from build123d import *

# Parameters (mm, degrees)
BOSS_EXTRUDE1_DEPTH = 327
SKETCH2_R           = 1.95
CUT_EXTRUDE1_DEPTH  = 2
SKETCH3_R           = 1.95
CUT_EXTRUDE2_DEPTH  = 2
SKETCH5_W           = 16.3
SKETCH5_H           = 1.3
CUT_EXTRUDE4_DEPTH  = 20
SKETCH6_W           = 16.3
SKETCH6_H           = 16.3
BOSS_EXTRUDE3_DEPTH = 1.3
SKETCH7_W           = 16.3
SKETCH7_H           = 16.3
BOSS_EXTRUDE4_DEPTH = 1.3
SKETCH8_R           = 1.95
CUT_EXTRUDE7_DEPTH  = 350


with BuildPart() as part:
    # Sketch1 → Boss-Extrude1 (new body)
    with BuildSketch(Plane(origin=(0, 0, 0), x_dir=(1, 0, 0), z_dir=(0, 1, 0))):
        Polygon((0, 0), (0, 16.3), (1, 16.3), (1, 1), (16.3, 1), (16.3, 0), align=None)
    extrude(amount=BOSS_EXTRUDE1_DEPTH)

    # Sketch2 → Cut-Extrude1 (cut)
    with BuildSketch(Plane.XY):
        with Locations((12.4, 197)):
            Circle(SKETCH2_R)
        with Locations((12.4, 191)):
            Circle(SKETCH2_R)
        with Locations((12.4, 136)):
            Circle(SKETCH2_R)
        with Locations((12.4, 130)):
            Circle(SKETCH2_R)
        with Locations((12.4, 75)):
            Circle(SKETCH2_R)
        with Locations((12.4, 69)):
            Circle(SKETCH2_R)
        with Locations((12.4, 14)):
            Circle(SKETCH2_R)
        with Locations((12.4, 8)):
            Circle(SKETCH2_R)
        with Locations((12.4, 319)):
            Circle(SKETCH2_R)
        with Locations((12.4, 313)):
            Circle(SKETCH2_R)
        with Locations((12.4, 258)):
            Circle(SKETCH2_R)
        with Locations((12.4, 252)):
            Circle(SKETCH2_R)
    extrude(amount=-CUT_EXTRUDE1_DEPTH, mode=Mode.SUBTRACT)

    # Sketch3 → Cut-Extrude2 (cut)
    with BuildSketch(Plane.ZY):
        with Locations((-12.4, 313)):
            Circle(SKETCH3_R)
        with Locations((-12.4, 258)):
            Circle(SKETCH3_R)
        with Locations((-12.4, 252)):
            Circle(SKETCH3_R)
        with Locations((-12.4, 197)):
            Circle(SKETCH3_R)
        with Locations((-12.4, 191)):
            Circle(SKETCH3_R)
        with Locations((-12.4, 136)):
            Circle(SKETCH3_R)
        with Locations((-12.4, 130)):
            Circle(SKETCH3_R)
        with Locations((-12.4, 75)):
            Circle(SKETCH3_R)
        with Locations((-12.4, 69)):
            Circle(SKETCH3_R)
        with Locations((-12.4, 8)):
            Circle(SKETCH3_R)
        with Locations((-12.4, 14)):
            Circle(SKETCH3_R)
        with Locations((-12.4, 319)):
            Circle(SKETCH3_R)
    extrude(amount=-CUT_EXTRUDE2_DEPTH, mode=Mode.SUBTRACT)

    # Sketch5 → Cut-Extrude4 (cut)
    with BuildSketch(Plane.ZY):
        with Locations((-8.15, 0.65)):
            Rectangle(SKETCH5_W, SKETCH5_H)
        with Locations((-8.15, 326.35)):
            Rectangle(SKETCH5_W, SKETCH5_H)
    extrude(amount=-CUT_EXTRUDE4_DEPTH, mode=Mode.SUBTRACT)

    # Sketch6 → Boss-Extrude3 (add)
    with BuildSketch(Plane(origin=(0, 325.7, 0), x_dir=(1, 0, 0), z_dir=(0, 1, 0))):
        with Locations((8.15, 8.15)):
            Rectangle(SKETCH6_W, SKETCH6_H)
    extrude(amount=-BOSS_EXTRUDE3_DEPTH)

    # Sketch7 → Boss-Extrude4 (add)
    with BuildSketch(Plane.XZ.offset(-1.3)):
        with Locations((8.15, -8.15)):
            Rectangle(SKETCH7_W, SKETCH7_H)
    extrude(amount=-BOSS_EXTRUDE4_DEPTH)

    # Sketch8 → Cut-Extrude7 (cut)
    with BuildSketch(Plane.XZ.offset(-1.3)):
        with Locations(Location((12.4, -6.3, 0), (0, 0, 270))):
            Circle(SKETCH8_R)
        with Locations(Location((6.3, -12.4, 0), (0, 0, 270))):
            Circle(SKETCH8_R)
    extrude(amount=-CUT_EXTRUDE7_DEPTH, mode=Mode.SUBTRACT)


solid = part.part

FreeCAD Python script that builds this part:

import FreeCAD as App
import Part
import Sketcher
from FreeCAD import Vector

doc = App.newDocument("Part")
body = doc.addObject("PartDesign::Body", "Body")

# Sketch on XZ plane
sketch1 = body.newObject("Sketcher::SketchObject", "Sketch")
sketch1.AttachmentSupport = (doc.getObject("XZ_Plane"), [""])
sketch1.MapMode = "FlatFace"
sketch1.addGeometry(Part.LineSegment(Vector(0, -16.3, 0), Vector(0, 0, 0)), False)
sketch1.addGeometry(Part.LineSegment(Vector(0, 0, 0), Vector(16.3, 0, 0)), False)
sketch1.addGeometry(Part.LineSegment(Vector(16.3, 0, 0), Vector(16.3, -1, 0)), False)
sketch1.addGeometry(Part.LineSegment(Vector(16.3, -1, 0), Vector(1, -1, 0)), False)
sketch1.addGeometry(Part.LineSegment(Vector(1, -1, 0), Vector(1, -16.3, 0)), False)
sketch1.addGeometry(Part.LineSegment(Vector(1, -16.3, 0), Vector(0, -16.3, 0)), False)
sketch1.addConstraint(Sketcher.Constraint("Coincident", 0, 2, 1, 1))
sketch1.addConstraint(Sketcher.Constraint("Coincident", 1, 2, 2, 1))
sketch1.addConstraint(Sketcher.Constraint("Coincident", 2, 2, 3, 1))
sketch1.addConstraint(Sketcher.Constraint("Coincident", 3, 2, 4, 1))
sketch1.addConstraint(Sketcher.Constraint("Coincident", 4, 2, 5, 1))
sketch1.addConstraint(Sketcher.Constraint("Coincident", 5, 2, 0, 1))
sketch1.addConstraint(Sketcher.Constraint("Vertical", 0))
sketch1.addConstraint(Sketcher.Constraint("Horizontal", 1))
sketch1.addConstraint(Sketcher.Constraint("Vertical", 2))
sketch1.addConstraint(Sketcher.Constraint("Horizontal", 3))
sketch1.addConstraint(Sketcher.Constraint("Vertical", 4))
sketch1.addConstraint(Sketcher.Constraint("Horizontal", 5))
sketch1.addConstraint(Sketcher.Constraint("Coincident", 0, 2, -1, 1))
sketch1.addConstraint(Sketcher.Constraint("Equal", 1, 0))
sketch1.addConstraint(Sketcher.Constraint("Equal", 5, 2))
sketch1.addConstraint(Sketcher.Constraint("DistanceX", 5, 2, 5, 1, 1.0))
sketch1.addConstraint(Sketcher.Constraint("DistanceX", 1, 1, 1, 2, 16.3))
pad1 = body.newObject("PartDesign::Pad", "Pad")
pad1.Profile = sketch1
pad1.Length = 327
pad1.Reversed = True

# Sketch on XY plane
sketch2 = body.newObject("Sketcher::SketchObject", "Sketch001")
sketch2.AttachmentSupport = (doc.getObject("XY_Plane"), [""])
sketch2.MapMode = "FlatFace"
sketch2.addGeometry(Part.Circle(Vector(12.4, 197, 0), Vector(0, 0, 1), 1.9), False)
sketch2.addGeometry(Part.Circle(Vector(12.4, 191, 0), Vector(0, 0, 1), 1.9), False)
sketch2.addGeometry(Part.Circle(Vector(12.4, 136, 0), Vector(0, 0, 1), 1.9), False)
sketch2.addGeometry(Part.Circle(Vector(12.4, 130, 0), Vector(0, 0, 1), 1.9), False)
sketch2.addGeometry(Part.Circle(Vector(12.4, 75, 0), Vector(0, 0, 1), 1.9), False)
sketch2.addGeometry(Part.Circle(Vector(12.4, 69, 0), Vector(0, 0, 1), 1.9), False)
sketch2.addGeometry(Part.Circle(Vector(12.4, 14, 0), Vector(0, 0, 1), 1.9), False)
sketch2.addGeometry(Part.Circle(Vector(12.4, 8, 0), Vector(0, 0, 1), 1.9), False)
sketch2.addGeometry(Part.Circle(Vector(12.4, 319, 0), Vector(0, 0, 1), 1.9), False)
sketch2.addGeometry(Part.Circle(Vector(12.4, 313, 0), Vector(0, 0, 1), 1.9), False)
sketch2.addGeometry(Part.Circle(Vector(12.4, 258, 0), Vector(0, 0, 1), 1.9), False)
sketch2.addGeometry(Part.Circle(Vector(12.4, 252, 0), Vector(0, 0, 1), 1.9), False)
sketch2.addConstraint(Sketcher.Constraint("Equal", 0, 1))
sketch2.addConstraint(Sketcher.Constraint("Equal", 1, 2))
sketch2.addConstraint(Sketcher.Constraint("Equal", 2, 3))
sketch2.addConstraint(Sketcher.Constraint("Equal", 3, 4))
sketch2.addConstraint(Sketcher.Constraint("Equal", 4, 5))
sketch2.addConstraint(Sketcher.Constraint("Equal", 5, 6))
sketch2.addConstraint(Sketcher.Constraint("Equal", 6, 7))
sketch2.addConstraint(Sketcher.Constraint("Equal", 7, 8))
sketch2.addConstraint(Sketcher.Constraint("Equal", 8, 9))
sketch2.addConstraint(Sketcher.Constraint("Equal", 9, 10))
sketch2.addConstraint(Sketcher.Constraint("Equal", 10, 11))
sketch2.addConstraint(Sketcher.Constraint("Vertical", 0, 3, 1, 3))
sketch2.addConstraint(Sketcher.Constraint("Vertical", 1, 3, 2, 3))
sketch2.addConstraint(Sketcher.Constraint("Vertical", 2, 3, 3, 3))
sketch2.addConstraint(Sketcher.Constraint("Vertical", 3, 3, 4, 3))
sketch2.addConstraint(Sketcher.Constraint("Vertical", 4, 3, 5, 3))
sketch2.addConstraint(Sketcher.Constraint("Vertical", 5, 3, 6, 3))
sketch2.addConstraint(Sketcher.Constraint("Vertical", 6, 3, 7, 3))
sketch2.addConstraint(Sketcher.Constraint("Vertical", 7, 3, 8, 3))
sketch2.addConstraint(Sketcher.Constraint("Vertical", 8, 3, 9, 3))
sketch2.addConstraint(Sketcher.Constraint("Vertical", 9, 3, 10, 3))
sketch2.addConstraint(Sketcher.Constraint("Vertical", 10, 3, 11, 3))
sketch2.addConstraint(Sketcher.Constraint("Diameter", 0, 3.9))
sketch2.addConstraint(Sketcher.Constraint("DistanceY", -1, 1, 0, 3, 197.0))
sketch2.addConstraint(Sketcher.Constraint("DistanceY", -1, 1, 1, 3, 191.0))
sketch2.addConstraint(Sketcher.Constraint("DistanceY", -1, 1, 2, 3, 136.0))
sketch2.addConstraint(Sketcher.Constraint("DistanceY", -1, 1, 3, 3, 130.0))
sketch2.addConstraint(Sketcher.Constraint("DistanceY", -1, 1, 4, 3, 75.0))
sketch2.addConstraint(Sketcher.Constraint("DistanceY", -1, 1, 5, 3, 69.0))
sketch2.addConstraint(Sketcher.Constraint("DistanceY", -1, 1, 6, 3, 14.0))
sketch2.addConstraint(Sketcher.Constraint("DistanceY", -1, 1, 7, 3, 8.0))
sketch2.addConstraint(Sketcher.Constraint("DistanceY", -1, 1, 8, 3, 319.0))
sketch2.addConstraint(Sketcher.Constraint("DistanceY", -1, 1, 9, 3, 313.0))
sketch2.addConstraint(Sketcher.Constraint("DistanceY", -1, 1, 10, 3, 258.0))
sketch2.addConstraint(Sketcher.Constraint("DistanceY", -1, 1, 11, 3, 252.0))
sketch2.addConstraint(Sketcher.Constraint("DistanceX", -1, 1, 0, 3, 12.4))
pocket1 = body.newObject("PartDesign::Pocket", "Pocket")
pocket1.Profile = sketch2
pocket1.Length = 2

# Sketch on YZ plane
sketch3 = body.newObject("Sketcher::SketchObject", "Sketch002")
sketch3.AttachmentSupport = (doc.getObject("YZ_Plane"), [""])
sketch3.MapMode = "FlatFace"
sketch3.addGeometry(Part.Circle(Vector(313, -12.4, 0), Vector(0, 0, 1), 1.9), False)
sketch3.addGeometry(Part.Circle(Vector(258, -12.4, 0), Vector(0, 0, 1), 1.9), False)
sketch3.addGeometry(Part.Circle(Vector(252, -12.4, 0), Vector(0, 0, 1), 1.9), False)
sketch3.addGeometry(Part.Circle(Vector(197, -12.4, 0), Vector(0, 0, 1), 1.9), False)
sketch3.addGeometry(Part.Circle(Vector(191, -12.4, 0), Vector(0, 0, 1), 1.9), False)
sketch3.addGeometry(Part.Circle(Vector(136, -12.4, 0), Vector(0, 0, 1), 1.9), False)
sketch3.addGeometry(Part.Circle(Vector(130, -12.4, 0), Vector(0, 0, 1), 1.9), False)
sketch3.addGeometry(Part.Circle(Vector(75, -12.4, 0), Vector(0, 0, 1), 1.9), False)
sketch3.addGeometry(Part.Circle(Vector(69, -12.4, 0), Vector(0, 0, 1), 1.9), False)
sketch3.addGeometry(Part.Circle(Vector(8, -12.4, 0), Vector(0, 0, 1), 1.9), False)
sketch3.addGeometry(Part.Circle(Vector(14, -12.4, 0), Vector(0, 0, 1), 1.9), False)
sketch3.addGeometry(Part.Circle(Vector(319, -12.4, 0), Vector(0, 0, 1), 1.9), False)
sketch3.addConstraint(Sketcher.Constraint("Equal", 0, 1))
sketch3.addConstraint(Sketcher.Constraint("Equal", 1, 2))
sketch3.addConstraint(Sketcher.Constraint("Equal", 2, 3))
sketch3.addConstraint(Sketcher.Constraint("Equal", 3, 4))
sketch3.addConstraint(Sketcher.Constraint("Equal", 4, 5))
sketch3.addConstraint(Sketcher.Constraint("Equal", 5, 6))
sketch3.addConstraint(Sketcher.Constraint("Equal", 6, 7))
sketch3.addConstraint(Sketcher.Constraint("Equal", 7, 8))
sketch3.addConstraint(Sketcher.Constraint("Equal", 8, 9))
sketch3.addConstraint(Sketcher.Constraint("Equal", 9, 10))
sketch3.addConstraint(Sketcher.Constraint("Equal", 10, 11))
sketch3.addConstraint(Sketcher.Constraint("Horizontal", 0, 3, 1, 3))
sketch3.addConstraint(Sketcher.Constraint("Horizontal", 1, 3, 2, 3))
sketch3.addConstraint(Sketcher.Constraint("Horizontal", 2, 3, 3, 3))
sketch3.addConstraint(Sketcher.Constraint("Horizontal", 3, 3, 4, 3))
sketch3.addConstraint(Sketcher.Constraint("Horizontal", 4, 3, 5, 3))
sketch3.addConstraint(Sketcher.Constraint("Horizontal", 5, 3, 6, 3))
sketch3.addConstraint(Sketcher.Constraint("Horizontal", 6, 3, 7, 3))
sketch3.addConstraint(Sketcher.Constraint("Horizontal", 7, 3, 8, 3))
sketch3.addConstraint(Sketcher.Constraint("Horizontal", 8, 3, 9, 3))
sketch3.addConstraint(Sketcher.Constraint("Horizontal", 9, 3, 10, 3))
sketch3.addConstraint(Sketcher.Constraint("Horizontal", 10, 3, 11, 3))
sketch3.addConstraint(Sketcher.Constraint("Diameter", 0, 3.9))
sketch3.addConstraint(Sketcher.Constraint("DistanceX", -1, 1, 0, 3, 313.0))
sketch3.addConstraint(Sketcher.Constraint("DistanceX", -1, 1, 1, 3, 258.0))
sketch3.addConstraint(Sketcher.Constraint("DistanceX", -1, 1, 2, 3, 252.0))
sketch3.addConstraint(Sketcher.Constraint("DistanceX", -1, 1, 3, 3, 197.0))
sketch3.addConstraint(Sketcher.Constraint("DistanceX", -1, 1, 4, 3, 191.0))
sketch3.addConstraint(Sketcher.Constraint("DistanceX", -1, 1, 5, 3, 136.0))
sketch3.addConstraint(Sketcher.Constraint("DistanceX", -1, 1, 6, 3, 130.0))
sketch3.addConstraint(Sketcher.Constraint("DistanceX", -1, 1, 7, 3, 75.0))
sketch3.addConstraint(Sketcher.Constraint("DistanceX", -1, 1, 8, 3, 69.0))
sketch3.addConstraint(Sketcher.Constraint("DistanceX", -1, 1, 9, 3, 8.0))
sketch3.addConstraint(Sketcher.Constraint("DistanceX", -1, 1, 10, 3, 14.0))
sketch3.addConstraint(Sketcher.Constraint("DistanceX", -1, 1, 11, 3, 319.0))
sketch3.addConstraint(Sketcher.Constraint("DistanceY", 0, 3, -1, 1, 12.4))
pocket2 = body.newObject("PartDesign::Pocket", "Pocket001")
pocket2.Profile = sketch3
pocket2.Length = 2
pocket2.Reversed = True

# Sketch on YZ plane
sketch4 = body.newObject("Sketcher::SketchObject", "Sketch003")
sketch4.AttachmentSupport = (doc.getObject("YZ_Plane"), [""])
sketch4.MapMode = "FlatFace"
sketch4.addGeometry(Part.LineSegment(Vector(1.3, -16.3, 0), Vector(0, -16.3, 0)), False)
sketch4.addGeometry(Part.LineSegment(Vector(0, -16.3, 0), Vector(0, 0, 0)), False)
sketch4.addGeometry(Part.LineSegment(Vector(0, 0, 0), Vector(1.3, 0, 0)), False)
sketch4.addGeometry(Part.LineSegment(Vector(1.3, 0, 0), Vector(1.3, -16.3, 0)), False)
sketch4.addGeometry(Part.LineSegment(Vector(327, -16.3, 0), Vector(325.7, -16.3, 0)), False)
sketch4.addGeometry(Part.LineSegment(Vector(325.7, -16.3, 0), Vector(325.7, 0, 0)), False)
sketch4.addGeometry(Part.LineSegment(Vector(325.7, 0, 0), Vector(327, 0, 0)), False)
sketch4.addGeometry(Part.LineSegment(Vector(327, 0, 0), Vector(327, -16.3, 0)), False)
sketch4.addConstraint(Sketcher.Constraint("Coincident", 0, 2, 1, 1))
sketch4.addConstraint(Sketcher.Constraint("Coincident", 1, 2, 2, 1))
sketch4.addConstraint(Sketcher.Constraint("Coincident", 2, 2, 3, 1))
sketch4.addConstraint(Sketcher.Constraint("Coincident", 3, 2, 0, 1))
sketch4.addConstraint(Sketcher.Constraint("Coincident", 4, 2, 5, 1))
sketch4.addConstraint(Sketcher.Constraint("Coincident", 5, 2, 6, 1))
sketch4.addConstraint(Sketcher.Constraint("Coincident", 6, 2, 7, 1))
sketch4.addConstraint(Sketcher.Constraint("Coincident", 7, 2, 4, 1))
sketch4.addConstraint(Sketcher.Constraint("Horizontal", 0))
sketch4.addConstraint(Sketcher.Constraint("Vertical", 1))
sketch4.addConstraint(Sketcher.Constraint("Horizontal", 2))
sketch4.addConstraint(Sketcher.Constraint("Vertical", 3))
sketch4.addConstraint(Sketcher.Constraint("Horizontal", 4))
sketch4.addConstraint(Sketcher.Constraint("Vertical", 5))
sketch4.addConstraint(Sketcher.Constraint("Horizontal", 6))
sketch4.addConstraint(Sketcher.Constraint("Vertical", 7))
sketch4.addConstraint(Sketcher.Constraint("Coincident", 1, 2, -1, 1))
sketch4.addConstraint(Sketcher.Constraint("PointOnObject", 5, 2, -1))
sketch4.addConstraint(Sketcher.Constraint("Horizontal", 3, 2, 4, 2))
sketch4.addConstraint(Sketcher.Constraint("Equal", 2, 4))
sketch4.addConstraint(Sketcher.Constraint("DistanceX", 0, 2, 0, 1, 1.3))
sketch4.addConstraint(Sketcher.Constraint("DistanceY", 1, 1, 1, 2, 16.3))
sketch4.addConstraint(Sketcher.Constraint("DistanceX", -1, 1, 6, 2, 327.0))
pocket3 = body.newObject("PartDesign::Pocket", "Pocket002")
pocket3.Profile = sketch4
pocket3.Length = 20
pocket3.Reversed = True

# Sketch on XZ plane
sketch5 = body.newObject("Sketcher::SketchObject", "Sketch004")
sketch5.AttachmentSupport = (doc.getObject("XZ_Plane"), [""])
sketch5.MapMode = "FlatFace"
sketch5.AttachmentOffset = App.Placement(Vector(0, 0, -325.7), App.Rotation())
sketch5.addGeometry(Part.LineSegment(Vector(0, -16, 0), Vector(0, 0, 0)), False)
sketch5.addGeometry(Part.LineSegment(Vector(0, 0, 0), Vector(16, 0, 0)), False)
sketch5.addGeometry(Part.LineSegment(Vector(16, 0, 0), Vector(16, -16, 0)), False)
sketch5.addGeometry(Part.LineSegment(Vector(16, -16, 0), Vector(0, -16, 0)), False)
sketch5.addConstraint(Sketcher.Constraint("Coincident", 0, 2, 1, 1))
sketch5.addConstraint(Sketcher.Constraint("Coincident", 1, 2, 2, 1))
sketch5.addConstraint(Sketcher.Constraint("Coincident", 2, 2, 3, 1))
sketch5.addConstraint(Sketcher.Constraint("Coincident", 3, 2, 0, 1))
sketch5.addConstraint(Sketcher.Constraint("Vertical", 0))
sketch5.addConstraint(Sketcher.Constraint("Horizontal", 1))
sketch5.addConstraint(Sketcher.Constraint("Vertical", 2))
sketch5.addConstraint(Sketcher.Constraint("Horizontal", 3))
sketch5.addConstraint(Sketcher.Constraint("Coincident", 0, 2, -1, 1))
sketch5.addConstraint(Sketcher.Constraint("Equal", 3, 0))
sketch5.addConstraint(Sketcher.Constraint("DistanceX", 1, 1, 1, 2, 16.3))
pad2 = body.newObject("PartDesign::Pad", "Pad001")
pad2.Profile = sketch5
pad2.Length = 1.3

# Sketch on XZ plane
sketch6 = body.newObject("Sketcher::SketchObject", "Sketch005")
sketch6.AttachmentSupport = (doc.getObject("XZ_Plane"), [""])
sketch6.MapMode = "FlatFace"
sketch6.AttachmentOffset = App.Placement(Vector(0, 0, -1.3), App.Rotation())
sketch6.addGeometry(Part.LineSegment(Vector(0, 0, 0), Vector(0, -16, 0)), False)
sketch6.addGeometry(Part.LineSegment(Vector(0, -16, 0), Vector(16, -16, 0)), False)
sketch6.addGeometry(Part.LineSegment(Vector(16, -16, 0), Vector(16, 0, 0)), False)
sketch6.addGeometry(Part.LineSegment(Vector(16, 0, 0), Vector(0, 0, 0)), False)
sketch6.addConstraint(Sketcher.Constraint("Coincident", 0, 2, 1, 1))
sketch6.addConstraint(Sketcher.Constraint("Coincident", 1, 2, 2, 1))
sketch6.addConstraint(Sketcher.Constraint("Coincident", 2, 2, 3, 1))
sketch6.addConstraint(Sketcher.Constraint("Coincident", 3, 2, 0, 1))
sketch6.addConstraint(Sketcher.Constraint("Vertical", 0))
sketch6.addConstraint(Sketcher.Constraint("Horizontal", 1))
sketch6.addConstraint(Sketcher.Constraint("Vertical", 2))
sketch6.addConstraint(Sketcher.Constraint("Horizontal", 3))
sketch6.addConstraint(Sketcher.Constraint("Coincident", 3, 2, -1, 1))
sketch6.addConstraint(Sketcher.Constraint("Equal", 3, 0))
sketch6.addConstraint(Sketcher.Constraint("DistanceX", 1, 1, 1, 2, 16.3))
pad3 = body.newObject("PartDesign::Pad", "Pad002")
pad3.Profile = sketch6
pad3.Length = 1.3
pad3.Reversed = True

# Sketch on XZ plane
sketch7 = body.newObject("Sketcher::SketchObject", "Sketch006")
sketch7.AttachmentSupport = (doc.getObject("XZ_Plane"), [""])
sketch7.MapMode = "FlatFace"
sketch7.AttachmentOffset = App.Placement(Vector(0, 0, -1.3), App.Rotation())
sketch7.addGeometry(Part.Circle(Vector(12.4, -6.3, 0), Vector(0, 0, 1), 1.9), False)
sketch7.addGeometry(Part.Circle(Vector(6.3, -12.4, 0), Vector(0, 0, 1), 1.9), False)
sketch7.addConstraint(Sketcher.Constraint("Equal", 0, 1))
sketch7.addConstraint(Sketcher.Constraint("Diameter", 0, 3.9))
sketch7.addConstraint(Sketcher.Constraint("DistanceX", -1, 1, 0, 3, 12.4))
sketch7.addConstraint(Sketcher.Constraint("DistanceY", 0, 3, -1, 1, 6.3))
sketch7.addConstraint(Sketcher.Constraint("DistanceX", -1, 1, 1, 3, 6.3))
sketch7.addConstraint(Sketcher.Constraint("DistanceY", 1, 3, -1, 1, 12.4))
pocket4 = body.newObject("PartDesign::Pocket", "Pocket003")
pocket4.Profile = sketch7
pocket4.Length = 350

doc.recompute()
